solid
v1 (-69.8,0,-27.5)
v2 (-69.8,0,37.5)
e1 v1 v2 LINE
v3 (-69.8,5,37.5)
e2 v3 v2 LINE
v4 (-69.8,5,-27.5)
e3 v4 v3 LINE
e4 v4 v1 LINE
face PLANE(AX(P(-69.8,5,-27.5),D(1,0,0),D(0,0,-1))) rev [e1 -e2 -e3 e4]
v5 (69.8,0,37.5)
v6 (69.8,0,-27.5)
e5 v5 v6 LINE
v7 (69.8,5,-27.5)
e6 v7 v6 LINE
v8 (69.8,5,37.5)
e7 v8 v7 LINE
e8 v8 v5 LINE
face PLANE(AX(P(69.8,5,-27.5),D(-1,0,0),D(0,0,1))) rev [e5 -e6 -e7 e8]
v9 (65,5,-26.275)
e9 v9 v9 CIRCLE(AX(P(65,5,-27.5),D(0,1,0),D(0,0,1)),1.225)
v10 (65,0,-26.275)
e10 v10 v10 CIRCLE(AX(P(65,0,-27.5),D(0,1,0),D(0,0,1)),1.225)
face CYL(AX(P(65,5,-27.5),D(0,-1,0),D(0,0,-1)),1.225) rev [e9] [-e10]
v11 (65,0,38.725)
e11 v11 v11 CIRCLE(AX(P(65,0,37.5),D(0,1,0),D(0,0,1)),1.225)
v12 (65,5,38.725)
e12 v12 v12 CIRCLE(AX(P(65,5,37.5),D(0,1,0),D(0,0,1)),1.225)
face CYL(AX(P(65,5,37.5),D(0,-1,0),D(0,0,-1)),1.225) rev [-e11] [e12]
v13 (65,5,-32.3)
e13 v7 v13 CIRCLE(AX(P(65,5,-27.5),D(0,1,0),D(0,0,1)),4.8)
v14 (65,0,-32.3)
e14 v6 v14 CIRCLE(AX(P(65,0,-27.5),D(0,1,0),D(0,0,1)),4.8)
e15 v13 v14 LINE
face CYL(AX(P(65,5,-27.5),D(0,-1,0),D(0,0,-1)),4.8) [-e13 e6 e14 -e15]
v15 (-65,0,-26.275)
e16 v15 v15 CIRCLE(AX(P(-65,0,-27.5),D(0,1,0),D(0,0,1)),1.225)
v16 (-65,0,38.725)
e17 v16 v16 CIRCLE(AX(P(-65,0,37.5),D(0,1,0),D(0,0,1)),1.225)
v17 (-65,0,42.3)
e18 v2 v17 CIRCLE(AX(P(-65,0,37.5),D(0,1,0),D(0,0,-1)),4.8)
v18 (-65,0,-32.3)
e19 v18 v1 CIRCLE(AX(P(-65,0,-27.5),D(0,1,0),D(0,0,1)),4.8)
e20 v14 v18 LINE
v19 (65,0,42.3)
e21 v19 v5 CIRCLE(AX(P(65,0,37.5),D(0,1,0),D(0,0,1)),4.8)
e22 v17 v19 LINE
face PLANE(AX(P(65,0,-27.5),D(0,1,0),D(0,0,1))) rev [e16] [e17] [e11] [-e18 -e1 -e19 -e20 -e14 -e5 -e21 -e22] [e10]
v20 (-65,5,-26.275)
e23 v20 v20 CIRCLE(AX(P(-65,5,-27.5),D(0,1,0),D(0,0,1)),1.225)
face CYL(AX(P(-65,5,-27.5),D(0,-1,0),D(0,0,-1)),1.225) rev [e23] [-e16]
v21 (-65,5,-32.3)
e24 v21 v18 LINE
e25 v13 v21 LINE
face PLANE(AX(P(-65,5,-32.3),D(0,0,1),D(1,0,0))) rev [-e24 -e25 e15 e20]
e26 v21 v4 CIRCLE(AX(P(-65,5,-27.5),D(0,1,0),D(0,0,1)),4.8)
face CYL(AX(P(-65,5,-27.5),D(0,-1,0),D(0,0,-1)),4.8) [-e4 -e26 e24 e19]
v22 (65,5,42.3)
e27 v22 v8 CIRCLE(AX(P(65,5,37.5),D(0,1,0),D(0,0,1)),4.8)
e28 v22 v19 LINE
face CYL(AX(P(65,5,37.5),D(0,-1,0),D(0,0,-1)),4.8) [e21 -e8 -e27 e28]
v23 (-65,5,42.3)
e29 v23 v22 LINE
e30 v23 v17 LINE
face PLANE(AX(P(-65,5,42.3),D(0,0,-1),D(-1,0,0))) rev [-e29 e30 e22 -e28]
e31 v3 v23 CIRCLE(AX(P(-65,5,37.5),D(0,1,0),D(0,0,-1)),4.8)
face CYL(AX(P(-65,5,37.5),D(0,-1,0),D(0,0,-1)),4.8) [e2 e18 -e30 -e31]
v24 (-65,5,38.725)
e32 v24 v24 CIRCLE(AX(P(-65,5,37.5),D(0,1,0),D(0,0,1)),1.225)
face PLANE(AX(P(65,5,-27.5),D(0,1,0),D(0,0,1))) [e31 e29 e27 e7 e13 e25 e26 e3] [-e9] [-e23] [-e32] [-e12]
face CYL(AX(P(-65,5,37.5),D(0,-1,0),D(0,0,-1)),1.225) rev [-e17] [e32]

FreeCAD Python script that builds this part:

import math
import FreeCAD as App
import Part
import Sketcher
from FreeCAD import Vector

doc = App.newDocument("Part")
body = doc.addObject("PartDesign::Body", "Body")

# Sketch on XZ plane
sketch1 = doc.addObject("Sketcher::SketchObject", "Sketch")
body.addObject(sketch1)
sketch1.AttachmentSupport = (doc.XZ_Plane, [""])
sketch1.MapMode = "FlatFace"
sketch1.addGeometry([
    Part.LineSegment(Vector(69.8, 37.5, 0), Vector(69.8, -27.5, 0)),  # 0
    Part.ArcOfCircle(Part.Circle(Vector(65, -27.5, 0), Vector(0, 0, 1), 4.8), math.radians(-90), math.radians(0)),  # 1
    Part.LineSegment(Vector(65, -32.3, 0), Vector(-65, -32.3, 0)),  # 2
    Part.ArcOfCircle(Part.Circle(Vector(-65, -27.5, 0), Vector(0, 0, 1), 4.8), math.radians(180), math.radians(270)),  # 3
    Part.LineSegment(Vector(-69.8, -27.5, 0), Vector(-69.8, 37.5, 0)),  # 4
    Part.ArcOfCircle(Part.Circle(Vector(-65, 37.5, 0), Vector(0, 0, 1), 4.8), math.radians(90), math.radians(180)),  # 5
    Part.LineSegment(Vector(-65, 42.3, 0), Vector(65, 42.3, 0)),  # 6
    Part.ArcOfCircle(Part.Circle(Vector(65, 37.5, 0), Vector(0, 0, 1), 4.8), math.radians(0), math.radians(90)),  # 7
    Part.Circle(Vector(65, 37.5, 0), Vector(0, 0, 1), 1.2),  # 8
    Part.Circle(Vector(-65, 37.5, 0), Vector(0, 0, 1), 1.2),  # 9
    Part.Circle(Vector(65, -27.5, 0), Vector(0, 0, 1), 1.2),  # 10
    Part.Circle(Vector(-65, -27.5, 0), Vector(0, 0, 1), 1.2),  # 11
], False)
sketch1.addConstraint([
    Sketcher.Constraint("Tangent", 0, 2, 1, 2),
    Sketcher.Constraint("Tangent", 1, 1, 2, 1),
    Sketcher.Constraint("Tangent", 2, 2, 3, 2),
    Sketcher.Constraint("Tangent", 3, 1, 4, 1),
    Sketcher.Constraint("Tangent", 4, 2, 5, 2),
    Sketcher.Constraint("Tangent", 5, 1, 6, 1),
    Sketcher.Constraint("Tangent", 6, 2, 7, 2),
    Sketcher.Constraint("Tangent", 7, 1, 0, 1),
    Sketcher.Constraint("Vertical", 0),
    Sketcher.Constraint("Horizontal", 2),
    Sketcher.Constraint("Vertical", 4),
    Sketcher.Constraint("Horizontal", 6),
    Sketcher.Constraint("Coincident", 8, 3, 7, 3),
    Sketcher.Constraint("Coincident", 9, 3, 5, 3),
    Sketcher.Constraint("Coincident", 10, 3, 1, 3),
    Sketcher.Constraint("Coincident", 11, 3, 3, 3),
    Sketcher.Constraint("Equal", 1, 3),
    Sketcher.Constraint("Equal", 3, 5),
    Sketcher.Constraint("Equal", 5, 7),
    Sketcher.Constraint("Equal", 8, 9),
    Sketcher.Constraint("Equal", 9, 10),
    Sketcher.Constraint("Equal", 10, 11),
    Sketcher.Constraint("Radius", 1, 4.8),
    Sketcher.Constraint("Diameter", 8, 2.45),
    Sketcher.Constraint("DistanceX", 2, 2, 2, 1, 130.0),
    Sketcher.Constraint("DistanceY", 0, 2, 0, 1, 65.0),
    Sketcher.Constraint("DistanceX", -1, 1, 1, 3, 65.0),
    Sketcher.Constraint("DistanceY", 1, 3, -1, 1, 27.5),
])
pad1 = doc.addObject("PartDesign::Pad", "Pad")
body.addObject(pad1)
pad1.Profile = sketch1
pad1.Length = 5
pad1.Reversed = True

doc.recompute()
